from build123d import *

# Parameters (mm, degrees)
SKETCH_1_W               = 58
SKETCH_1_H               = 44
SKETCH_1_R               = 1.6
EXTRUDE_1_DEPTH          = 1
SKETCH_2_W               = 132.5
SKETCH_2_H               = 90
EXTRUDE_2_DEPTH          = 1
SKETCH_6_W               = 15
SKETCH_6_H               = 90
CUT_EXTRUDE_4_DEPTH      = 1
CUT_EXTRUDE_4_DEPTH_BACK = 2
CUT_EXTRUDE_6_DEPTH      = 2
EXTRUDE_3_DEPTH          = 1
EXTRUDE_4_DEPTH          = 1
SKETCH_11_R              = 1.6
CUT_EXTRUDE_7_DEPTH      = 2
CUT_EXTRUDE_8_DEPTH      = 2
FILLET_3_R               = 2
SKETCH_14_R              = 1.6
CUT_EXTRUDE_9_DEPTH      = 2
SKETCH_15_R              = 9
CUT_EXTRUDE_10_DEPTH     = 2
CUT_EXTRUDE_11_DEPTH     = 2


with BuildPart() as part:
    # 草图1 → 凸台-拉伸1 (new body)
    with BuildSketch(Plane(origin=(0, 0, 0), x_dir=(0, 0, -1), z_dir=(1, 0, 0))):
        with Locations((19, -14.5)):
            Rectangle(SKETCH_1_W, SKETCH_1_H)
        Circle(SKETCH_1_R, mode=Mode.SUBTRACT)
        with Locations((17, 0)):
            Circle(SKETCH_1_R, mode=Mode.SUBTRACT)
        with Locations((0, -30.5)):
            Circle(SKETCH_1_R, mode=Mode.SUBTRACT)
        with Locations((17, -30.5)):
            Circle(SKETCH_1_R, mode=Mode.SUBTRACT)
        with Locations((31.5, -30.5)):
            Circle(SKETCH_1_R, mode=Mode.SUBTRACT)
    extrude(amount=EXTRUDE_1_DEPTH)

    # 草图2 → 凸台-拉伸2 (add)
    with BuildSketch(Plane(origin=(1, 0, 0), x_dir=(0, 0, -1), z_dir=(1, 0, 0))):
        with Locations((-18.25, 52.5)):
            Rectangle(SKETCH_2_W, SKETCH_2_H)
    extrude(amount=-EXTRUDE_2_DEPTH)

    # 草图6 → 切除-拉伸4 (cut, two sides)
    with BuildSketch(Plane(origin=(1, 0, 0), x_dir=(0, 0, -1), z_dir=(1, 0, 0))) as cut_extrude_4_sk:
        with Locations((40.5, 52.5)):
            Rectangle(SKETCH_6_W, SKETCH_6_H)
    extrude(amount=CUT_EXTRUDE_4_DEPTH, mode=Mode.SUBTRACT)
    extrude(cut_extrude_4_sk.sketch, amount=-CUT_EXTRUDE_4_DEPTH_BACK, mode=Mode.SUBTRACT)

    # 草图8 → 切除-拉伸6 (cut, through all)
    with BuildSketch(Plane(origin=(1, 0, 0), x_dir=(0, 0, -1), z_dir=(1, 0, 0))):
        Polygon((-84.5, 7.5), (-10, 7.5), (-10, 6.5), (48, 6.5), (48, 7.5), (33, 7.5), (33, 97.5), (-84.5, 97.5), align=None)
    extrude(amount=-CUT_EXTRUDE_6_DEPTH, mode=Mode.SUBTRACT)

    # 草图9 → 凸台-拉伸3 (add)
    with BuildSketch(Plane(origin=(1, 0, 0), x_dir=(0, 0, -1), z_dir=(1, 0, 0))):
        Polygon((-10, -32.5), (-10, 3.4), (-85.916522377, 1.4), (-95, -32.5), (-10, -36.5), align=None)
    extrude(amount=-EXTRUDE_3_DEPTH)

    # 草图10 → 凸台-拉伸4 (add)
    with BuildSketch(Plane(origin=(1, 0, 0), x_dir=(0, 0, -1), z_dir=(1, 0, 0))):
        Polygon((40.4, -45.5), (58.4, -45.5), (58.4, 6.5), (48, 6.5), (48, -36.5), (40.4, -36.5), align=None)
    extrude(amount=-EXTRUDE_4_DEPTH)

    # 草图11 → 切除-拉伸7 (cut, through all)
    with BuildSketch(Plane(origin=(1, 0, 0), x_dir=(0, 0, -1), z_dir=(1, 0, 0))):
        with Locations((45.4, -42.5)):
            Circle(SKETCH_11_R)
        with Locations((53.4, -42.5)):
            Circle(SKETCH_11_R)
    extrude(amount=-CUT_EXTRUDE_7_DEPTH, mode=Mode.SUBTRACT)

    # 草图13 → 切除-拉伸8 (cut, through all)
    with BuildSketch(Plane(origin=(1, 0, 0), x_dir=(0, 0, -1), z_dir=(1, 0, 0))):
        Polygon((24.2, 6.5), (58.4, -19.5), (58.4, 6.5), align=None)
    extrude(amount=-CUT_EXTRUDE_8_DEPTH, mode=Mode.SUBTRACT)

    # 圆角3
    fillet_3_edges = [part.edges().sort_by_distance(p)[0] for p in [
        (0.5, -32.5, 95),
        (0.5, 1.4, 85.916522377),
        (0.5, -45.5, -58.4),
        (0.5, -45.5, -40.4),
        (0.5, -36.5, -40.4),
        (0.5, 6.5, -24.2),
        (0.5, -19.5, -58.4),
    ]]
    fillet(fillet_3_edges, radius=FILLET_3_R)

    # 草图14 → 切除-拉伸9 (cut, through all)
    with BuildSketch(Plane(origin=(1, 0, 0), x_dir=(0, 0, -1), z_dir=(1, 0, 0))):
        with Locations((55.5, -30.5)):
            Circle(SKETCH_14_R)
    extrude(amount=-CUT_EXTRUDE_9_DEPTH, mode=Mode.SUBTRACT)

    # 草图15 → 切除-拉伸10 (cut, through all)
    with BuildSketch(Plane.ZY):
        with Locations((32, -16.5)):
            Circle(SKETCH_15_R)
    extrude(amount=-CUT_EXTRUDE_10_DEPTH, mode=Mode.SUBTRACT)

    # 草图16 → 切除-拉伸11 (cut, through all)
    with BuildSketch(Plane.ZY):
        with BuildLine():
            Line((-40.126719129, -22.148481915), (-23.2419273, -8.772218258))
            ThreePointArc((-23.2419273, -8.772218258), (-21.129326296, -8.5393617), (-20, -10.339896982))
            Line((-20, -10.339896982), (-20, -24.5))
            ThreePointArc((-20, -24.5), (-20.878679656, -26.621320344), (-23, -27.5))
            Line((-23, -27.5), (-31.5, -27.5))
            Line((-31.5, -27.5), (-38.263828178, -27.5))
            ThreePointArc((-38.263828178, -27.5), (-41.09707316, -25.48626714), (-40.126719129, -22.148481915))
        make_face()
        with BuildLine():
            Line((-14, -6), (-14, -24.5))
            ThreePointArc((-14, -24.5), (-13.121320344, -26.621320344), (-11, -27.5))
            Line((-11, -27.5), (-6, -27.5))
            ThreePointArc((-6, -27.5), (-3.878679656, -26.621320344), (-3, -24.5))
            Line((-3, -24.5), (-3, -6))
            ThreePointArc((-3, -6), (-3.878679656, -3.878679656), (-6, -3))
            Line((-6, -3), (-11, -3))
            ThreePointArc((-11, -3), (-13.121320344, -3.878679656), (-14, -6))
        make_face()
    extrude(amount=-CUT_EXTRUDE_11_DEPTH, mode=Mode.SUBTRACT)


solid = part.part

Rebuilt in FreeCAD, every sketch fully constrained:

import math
import FreeCAD as App
import Part
import Sketcher

V = App.Vector
Q = App.Units.Quantity


def edges_at(feature, points):
    """Names of the edges that pass closest to the given points."""
    edges = feature.Shape.Edges
    near = lambda p: min(range(len(edges)), key=lambda i: edges[i].distToShape(Part.Vertex(*p))[0])
    return sorted({f"Edge{near(p) + 1}" for p in points})


def add_polygon(sketch, points):
    """Adds a closed chain of lines whose ends are joined by coincident constraints."""
    first, n = sketch.GeometryCount, len(points)
    for a, b in zip(points, points[1:] + points[:1]):
        sketch.addGeometry(Part.LineSegment(App.Vector(*a, 0), App.Vector(*b, 0)), False)
    for i in range(n):
        sketch.addConstraint(Sketcher.Constraint("Coincident", first + i, 2, first + (i + 1) % n, 1))

doc = App.newDocument("Part")
body = doc.addObject("PartDesign::Body", "Body")

# Sketch on YZ plane
sketch1 = doc.addObject("Sketcher::SketchObject", "Sketch")
body.addObject(sketch1)
sketch1.AttachmentSupport = (doc.YZ_Plane, [""])
sketch1.MapMode = "FlatFace"
add_polygon(sketch1, [(7.5, 10), (-36.5, 10), (-36.5, -48), (7.5, -48)])  # lines 0-3
sketch1.addGeometry(Part.Circle(V(-30.5, 0, 0), V(0, 0, 1), 1.6), False)  # 4
sketch1.addGeometry(Part.Circle(V(-30.5, -17, 0), V(0, 0, 1), 1.6), False)  # 5
sketch1.addGeometry(Part.Circle(V(-30.5, -31.5, 0), V(0, 0, 1), 1.6), False)  # 6
sketch1.addGeometry(Part.Circle(V(0, 0, 0), V(0, 0, 1), 1.6), False)  # 7
sketch1.addGeometry(Part.Circle(V(0, -17, 0), V(0, 0, 1), 1.6), False)  # 8
sketch1.addConstraint([
    Sketcher.Constraint("Horizontal", 0),
    Sketcher.Constraint("Vertical", 1),
    Sketcher.Constraint("Horizontal", 2),
    Sketcher.Constraint("Vertical", 3),
    Sketcher.Constraint("Coincident", 7, 3, -1, 1),
    Sketcher.Constraint("Equal", 4, 5),
    Sketcher.Constraint("Equal", 5, 6),
    Sketcher.Constraint("Equal", 6, 7),
    Sketcher.Constraint("Equal", 7, 8),
    Sketcher.Constraint("PointOnObject", 4, 3, -1),
    Sketcher.Constraint("PointOnObject", 8, 3, -2),
    Sketcher.Constraint("Horizontal", 5, 3, 8, 3),
    Sketcher.Constraint("Vertical", 4, 3, 5, 3),
    Sketcher.Constraint("Vertical", 5, 3, 6, 3),
    Sketcher.Constraint("Diameter", 4, 3.2),
    Sketcher.Constraint("DistanceX", 0, 2, 0, 1, 44.0),
    Sketcher.Constraint("DistanceY", 1, 2, 1, 1, 58.0),
    Sketcher.Constraint("DistanceY", 5, 3, -1, 1, 17.0),
    Sketcher.Constraint("DistanceY", -1, 1, 0, 2, 10.0),
    Sketcher.Constraint("DistanceX", 0, 2, 4, 3, 6.0),
    Sketcher.Constraint("DistanceX", 4, 3, -1, 1, 30.5),
    Sketcher.Constraint("DistanceY", 6, 3, -1, 1, 31.5),
])
pad1 = doc.addObject("PartDesign::Pad", "Pad")
body.addObject(pad1)
pad1.Profile = sketch1
pad1.Length = 1

# Sketch on YZ plane
sketch2 = doc.addObject("Sketcher::SketchObject", "Sketch001")
body.addObject(sketch2)
sketch2.AttachmentSupport = (doc.YZ_Plane, [""])
sketch2.MapMode = "FlatFace"
sketch2.AttachmentOffset = App.Placement(V(0, 0, 1), App.Rotation())
add_polygon(sketch2, [(98, 84), (8, 84), (8, -48), (98, -48)])  # lines 0-3
sketch2.addConstraint([
    Sketcher.Constraint("Horizontal", 0),
    Sketcher.Constraint("Vertical", 1),
    Sketcher.Constraint("Horizontal", 2),
    Sketcher.Constraint("Vertical", 3),
    Sketcher.Constraint("DistanceX", 0, 2, 0, 1, 90.0),
    Sketcher.Constraint("DistanceY", 1, 2, 1, 1, 132.5),
    Sketcher.Constraint("DistanceY", 1, 2, -1, 1, 48.0),
    Sketcher.Constraint("DistanceX", -1, 1, 0, 2, 7.5),
])
pad2 = doc.addObject("PartDesign::Pad", "Pad001")
body.addObject(pad2)
pad2.Profile = sketch2
pad2.Length = 1
pad2.Reversed = True

# Sketch on YZ plane
sketch3 = doc.addObject("Sketcher::SketchObject", "Sketch002")
body.addObject(sketch3)
sketch3.AttachmentSupport = (doc.YZ_Plane, [""])
sketch3.MapMode = "FlatFace"
sketch3.AttachmentOffset = App.Placement(V(0, 0, 1), App.Rotation())
add_polygon(sketch3, [(98, -33), (8, -33), (8, -48), (98, -48)])  # lines 0-3
sketch3.addConstraint([
    Sketcher.Constraint("Horizontal", 0),
    Sketcher.Constraint("Vertical", 1),
    Sketcher.Constraint("Horizontal", 2),
    Sketcher.Constraint("Vertical", 3),
    Sketcher.Constraint("DistanceX", 0, 2, 0, 1, 90.0),
    Sketcher.Constraint("DistanceY", 1, 2, 1, 1, 15.0),
    Sketcher.Constraint("DistanceY", 0, 2, -1, 1, 33.0),
    Sketcher.Constraint("DistanceX", -1, 1, 0, 2, 7.5),
])
pocket1 = doc.addObject("PartDesign::Pocket", "Pocket")
body.addObject(pocket1)
pocket1.Profile = sketch3
pocket1.Type = "ThroughAll"
pocket1.Midplane = True

# Sketch on YZ plane
sketch4 = doc.addObject("Sketcher::SketchObject", "Sketch003")
body.addObject(sketch4)
sketch4.AttachmentSupport = (doc.YZ_Plane, [""])
sketch4.MapMode = "FlatFace"
sketch4.AttachmentOffset = App.Placement(V(0, 0, 1), App.Rotation())
add_polygon(sketch4, [(7.5, 84.5), (7.5, 10), (6.5, 10), (6.5, -48), (7.5, -48), (7.5, -33), (97.5, -33), (97.5, 84.5)])  # lines 0-7
sketch4.addConstraint([
    Sketcher.Constraint("Vertical", 0),
    Sketcher.Constraint("Horizontal", 1),
    Sketcher.Constraint("Vertical", 2),
    Sketcher.Constraint("Horizontal", 3),
    Sketcher.Constraint("Vertical", 4),
    Sketcher.Constraint("Horizontal", 5),
    Sketcher.Constraint("Vertical", 6),
    Sketcher.Constraint("Horizontal", 7),
    Sketcher.Constraint("Vertical", 0, 2, 3, 2),
    Sketcher.Constraint("DistanceX", 1, 2, 1, 1, 1.0),
    Sketcher.Constraint("DistanceX", 5, 1, 5, 2, 90.0),
    Sketcher.Constraint("DistanceY", 2, 2, 2, 1, 58.0),
    Sketcher.Constraint("DistanceY", 4, 1, 4, 2, 15.0),
    Sketcher.Constraint("DistanceY", 0, 2, 0, 1, 74.5),
    Sketcher.Constraint("DistanceY", -1, 1, 0, 2, 10.0),
    Sketcher.Constraint("DistanceX", -1, 1, 0, 2, 7.5),
])
pocket2 = doc.addObject("PartDesign::Pocket", "Pocket001")
body.addObject(pocket2)
pocket2.Profile = sketch4
pocket2.Type = "ThroughAll"

# Sketch on YZ plane
sketch5 = doc.addObject("Sketcher::SketchObject", "Sketch004")
body.addObject(sketch5)
sketch5.AttachmentSupport = (doc.YZ_Plane, [""])
sketch5.MapMode = "FlatFace"
sketch5.AttachmentOffset = App.Placement(V(0, 0, 1), App.Rotation())
add_polygon(sketch5, [(3, 10), (1, 86), (-32, 95), (-36, 10)])  # lines 0-3
sketch5.addConstraint([
    Sketcher.Constraint("Horizontal", 3),
    Sketcher.Constraint("Angle", 1, Q("165 deg")),
    Sketcher.Constraint("DistanceX", 3, 1, 3, 2, 39.9),
    Sketcher.Constraint("DistanceY", -1, 1, 1, 2, 95.0),
    Sketcher.Constraint("DistanceY", -1, 1, 2, 2, 10.0),
    Sketcher.Constraint("DistanceX", 2, 2, 1, 2, 4.0),
    Sketcher.Constraint("DistanceX", 0, 2, 3, 2, 2.0),
    Sketcher.Constraint("DistanceX", -1, 1, 0, 2, 1.4),
])
pad3 = doc.addObject("PartDesign::Pad", "Pad002")
body.addObject(pad3)
pad3.Profile = sketch5
pad3.Length = 1
pad3.Reversed = True

# Sketch on YZ plane
sketch6 = doc.addObject("Sketcher::SketchObject", "Sketch005")
body.addObject(sketch6)
sketch6.AttachmentSupport = (doc.YZ_Plane, [""])
sketch6.MapMode = "FlatFace"
sketch6.AttachmentOffset = App.Placement(V(0, 0, 1), App.Rotation())
add_polygon(sketch6, [(-46, -40), (-46, -58), (6, -58), (6, -48), (-36, -48), (-36, -40)])  # lines 0-5
sketch6.addConstraint([
    Sketcher.Constraint("Vertical", 0),
    Sketcher.Constraint("Horizontal", 1),
    Sketcher.Constraint("Vertical", 2),
    Sketcher.Constraint("Horizontal", 3),
    Sketcher.Constraint("Vertical", 4),
    Sketcher.Constraint("Horizontal", 5),
    Sketcher.Constraint("DistanceX", 1, 1, 1, 2, 52.0),
    Sketcher.Constraint("DistanceX", 3, 2, 3, 1, 43.0),
    Sketcher.Constraint("DistanceY", 0, 2, 0, 1, 18.0),
    Sketcher.Constraint("DistanceY", 2, 1, 2, 2, 10.4),
    Sketcher.Constraint("DistanceY", 2, 2, -1, 1, 48.0),
    Sketcher.Constraint("DistanceX", 0, 2, -1, 1, 45.5),
])
pad4 = doc.addObject("PartDesign::Pad", "Pad003")
body.addObject(pad4)
pad4.Profile = sketch6
pad4.Length = 1
pad4.Reversed = True

# Sketch on YZ plane
sketch7 = doc.addObject("Sketcher::SketchObject", "Sketch006")
body.addObject(sketch7)
sketch7.AttachmentSupport = (doc.YZ_Plane, [""])
sketch7.MapMode = "FlatFace"
sketch7.AttachmentOffset = App.Placement(V(0, 0, 1), App.Rotation())
sketch7.addGeometry([
    Part.Circle(V(-42.5, -45.4, 0), V(0, 0, 1), 1.6),
    Part.Circle(V(-42.5, -53.4, 0), V(0, 0, 1), 1.6),
], False)
sketch7.addConstraint([
    Sketcher.Constraint("Equal", 0, 1),
    Sketcher.Constraint("Vertical", 0, 3, 1, 3),
    Sketcher.Constraint("Diameter", 0, 3.2),
    Sketcher.Constraint("DistanceY", 1, 3, 0, 3, 8.0),
    Sketcher.Constraint("DistanceX", 0, 3, -1, 1, 42.5),
    Sketcher.Constraint("DistanceY", 0, 3, -1, 1, 45.4),
])
pocket3 = doc.addObject("PartDesign::Pocket", "Pocket002")
body.addObject(pocket3)
pocket3.Profile = sketch7
pocket3.Type = "ThroughAll"

# Sketch on YZ plane
sketch8 = doc.addObject("Sketcher::SketchObject", "Sketch007")
body.addObject(sketch8)
sketch8.AttachmentSupport = (doc.YZ_Plane, [""])
sketch8.MapMode = "FlatFace"
sketch8.AttachmentOffset = App.Placement(V(0, 0, 1), App.Rotation())
add_polygon(sketch8, [(6, -24), (-20, -58), (6, -58)])  # lines 0-2
sketch8.addConstraint([
    Sketcher.Constraint("Horizontal", 1),
    Sketcher.Constraint("Vertical", 2),
    Sketcher.Constraint("DistanceX", 1, 1, 1, 2, 26.0),
    Sketcher.Constraint("DistanceY", 2, 1, 2, 2, 34.2),
    Sketcher.Constraint("DistanceX", 0, 2, -1, 1, 19.5),
    Sketcher.Constraint("DistanceY", 0, 2, -1, 1, 58.4),
])
pocket4 = doc.addObject("PartDesign::Pocket", "Pocket003")
body.addObject(pocket4)
pocket4.Profile = sketch8
pocket4.Type = "ThroughAll"
doc.recompute()

fillet = doc.addObject("PartDesign::Fillet", "Fillet")
body.addObject(fillet)
fillet.Base = (pocket4, edges_at(pocket4, [
    (0.5, -32.5, 95),
    (0.5, 1.4, 85.917),
    (0.5, -45.5, -58.4),
    (0.5, -45.5, -40.4),
    (0.5, -36.5, -40.4),
    (0.5, 6.5, -24.2),
    (0.5, -19.5, -58.4),
]))
fillet.Radius = 2

# Sketch on YZ plane
sketch9 = doc.addObject("Sketcher::SketchObject", "Sketch008")
body.addObject(sketch9)
sketch9.AttachmentSupport = (doc.YZ_Plane, [""])
sketch9.MapMode = "FlatFace"
sketch9.AttachmentOffset = App.Placement(V(0, 0, 1), App.Rotation())
sketch9.addGeometry(Part.Circle(V(-30.5, -55.5, 0), V(0, 0, 1), 1.6), False)
sketch9.addConstraint([
    Sketcher.Constraint("Diameter", 0, 3.2),
    Sketcher.Constraint("DistanceX", 0, 3, -1, 1, 30.5),
    Sketcher.Constraint("DistanceY", 0, 3, -1, 1, 55.5),
])
pocket5 = doc.addObject("PartDesign::Pocket", "Pocket004")
body.addObject(pocket5)
pocket5.Profile = sketch9
pocket5.Type = "ThroughAll"

# Sketch on YZ plane
sketch10 = doc.addObject("Sketcher::SketchObject", "Sketch009")
body.addObject(sketch10)
sketch10.AttachmentSupport = (doc.YZ_Plane, [""])
sketch10.MapMode = "FlatFace"
sketch10.addGeometry(Part.Circle(V(-16, 32, 0), V(0, 0, 1), 9), False)
sketch10.addConstraint([
    Sketcher.Constraint("Diameter", 0, 18.0),
    Sketcher.Constraint("DistanceY", -1, 1, 0, 3, 32.0),
    Sketcher.Constraint("DistanceX", 0, 3, -1, 1, 16.5),
])
pocket6 = doc.addObject("PartDesign::Pocket", "Pocket005")
body.addObject(pocket6)
pocket6.Profile = sketch10
pocket6.Type = "ThroughAll"
pocket6.Reversed = True

# Sketch on YZ plane
sketch11 = doc.addObject("Sketcher::SketchObject", "Sketch010")
body.addObject(sketch11)
sketch11.AttachmentSupport = (doc.YZ_Plane, [""])
sketch11.MapMode = "FlatFace"
sketch11.addGeometry([
    Part.LineSegment(V(-8.8, -23.2, 0), V(-22.1, -40.1, 0)),  # 0
    Part.ArcOfCircle(Part.Circle(V(-24.5, -38.3, 0), V(0, 0, 1), 3), math.radians(180), math.radians(322)),  # 1
    Part.LineSegment(V(-27.5, -38.3, 0), V(-27.5, -23, 0)),  # 2
    Part.ArcOfCircle(Part.Circle(V(-24.5, -23, 0), V(0, 0, 1), 3), math.radians(90), math.radians(180)),  # 3
    Part.LineSegment(V(-24.5, -20, 0), V(-10.3, -20, 0)),  # 4
    Part.ArcOfCircle(Part.Circle(V(-10.3, -22, 0), V(0, 0, 1), 2), math.radians(-38), math.radians(90)),  # 5
    Part.LineSegment(V(-6, -14, 0), V(-24.5, -14, 0)),  # 6
    Part.ArcOfCircle(Part.Circle(V(-24.5, -11, 0), V(0, 0, 1), 3), math.radians(180), math.radians(270)),  # 7
    Part.LineSegment(V(-27.5, -11, 0), V(-27.5, -6, 0)),  # 8
    Part.ArcOfCircle(Part.Circle(V(-24.5, -6, 0), V(0, 0, 1), 3), math.radians(90), math.radians(180)),  # 9
    Part.LineSegment(V(-24.5, -3, 0), V(-6, -3, 0)),  # 10
    Part.ArcOfCircle(Part.Circle(V(-6, -6, 0), V(0, 0, 1), 3), math.radians(0), math.radians(90)),  # 11
    Part.LineSegment(V(-3, -6, 0), V(-3, -11, 0)),  # 12
    Part.ArcOfCircle(Part.Circle(V(-6, -11, 0), V(0, 0, 1), 3), math.radians(-90), math.radians(0)),  # 13
], False)
sketch11.addConstraint([
    Sketcher.Constraint("Tangent", 0, 2, 1, 2),
    Sketcher.Constraint("Tangent", 1, 1, 2, 1),
    Sketcher.Constraint("Tangent", 2, 2, 3, 2),
    Sketcher.Constraint("Tangent", 3, 1, 4, 1),
    Sketcher.Constraint("Tangent", 4, 2, 5, 2),
    Sketcher.Constraint("Tangent", 5, 1, 0, 1),
    Sketcher.Constraint("Tangent", 6, 2, 7, 2),
    Sketcher.Constraint("Tangent", 7, 1, 8, 1),
    Sketcher.Constraint("Tangent", 8, 2, 9, 2),
    Sketcher.Constraint("Tangent", 9, 1, 10, 1),
    Sketcher.Constraint("Tangent", 10, 2, 11, 2),
    Sketcher.Constraint("Tangent", 11, 1, 12, 1),
    Sketcher.Constraint("Tangent", 12, 2, 13, 2),
    Sketcher.Constraint("Tangent", 13, 1, 6, 1),
    Sketcher.Constraint("Vertical", 2),
    Sketcher.Constraint("Horizontal", 4),
    Sketcher.Constraint("Horizontal", 6),
    Sketcher.Constraint("Vertical", 8),
    Sketcher.Constraint("Horizontal", 10),
    Sketcher.Constraint("Vertical", 12),
    Sketcher.Constraint("Equal", 1, 3),
    Sketcher.Constraint("Equal", 3, 7),
    Sketcher.Constraint("Equal", 7, 9),
    Sketcher.Constraint("Equal", 9, 11),
    Sketcher.Constraint("Equal", 11, 13),
    Sketcher.Constraint("Vertical", 3, 3, 7, 3),
    Sketcher.Constraint("Radius", 1, 3.0),
    Sketcher.Constraint("Radius", 5, 2.0),
    Sketcher.Constraint("DistanceY", 8, 1, 8, 2, 5.0),
    Sketcher.Constraint("DistanceX", 6, 2, 6, 1, 18.5),
    Sketcher.Constraint("DistanceY", 3, 3, -1, 1, 23.0),
    Sketcher.Constraint("DistanceY", 7, 3, -1, 1, 11.0),
    Sketcher.Constraint("DistanceX", 11, 3, -1, 1, 6.0),
    Sketcher.Constraint("DistanceY", 2, 1, 2, 2, 15.263828),
    Sketcher.Constraint("DistanceX", 4, 1, 4, 2, 14.160103),
])
pocket7 = doc.addObject("PartDesign::Pocket", "Pocket006")
body.addObject(pocket7)
pocket7.Profile = sketch11
pocket7.Type = "ThroughAll"
pocket7.Reversed = True

doc.recompute()
